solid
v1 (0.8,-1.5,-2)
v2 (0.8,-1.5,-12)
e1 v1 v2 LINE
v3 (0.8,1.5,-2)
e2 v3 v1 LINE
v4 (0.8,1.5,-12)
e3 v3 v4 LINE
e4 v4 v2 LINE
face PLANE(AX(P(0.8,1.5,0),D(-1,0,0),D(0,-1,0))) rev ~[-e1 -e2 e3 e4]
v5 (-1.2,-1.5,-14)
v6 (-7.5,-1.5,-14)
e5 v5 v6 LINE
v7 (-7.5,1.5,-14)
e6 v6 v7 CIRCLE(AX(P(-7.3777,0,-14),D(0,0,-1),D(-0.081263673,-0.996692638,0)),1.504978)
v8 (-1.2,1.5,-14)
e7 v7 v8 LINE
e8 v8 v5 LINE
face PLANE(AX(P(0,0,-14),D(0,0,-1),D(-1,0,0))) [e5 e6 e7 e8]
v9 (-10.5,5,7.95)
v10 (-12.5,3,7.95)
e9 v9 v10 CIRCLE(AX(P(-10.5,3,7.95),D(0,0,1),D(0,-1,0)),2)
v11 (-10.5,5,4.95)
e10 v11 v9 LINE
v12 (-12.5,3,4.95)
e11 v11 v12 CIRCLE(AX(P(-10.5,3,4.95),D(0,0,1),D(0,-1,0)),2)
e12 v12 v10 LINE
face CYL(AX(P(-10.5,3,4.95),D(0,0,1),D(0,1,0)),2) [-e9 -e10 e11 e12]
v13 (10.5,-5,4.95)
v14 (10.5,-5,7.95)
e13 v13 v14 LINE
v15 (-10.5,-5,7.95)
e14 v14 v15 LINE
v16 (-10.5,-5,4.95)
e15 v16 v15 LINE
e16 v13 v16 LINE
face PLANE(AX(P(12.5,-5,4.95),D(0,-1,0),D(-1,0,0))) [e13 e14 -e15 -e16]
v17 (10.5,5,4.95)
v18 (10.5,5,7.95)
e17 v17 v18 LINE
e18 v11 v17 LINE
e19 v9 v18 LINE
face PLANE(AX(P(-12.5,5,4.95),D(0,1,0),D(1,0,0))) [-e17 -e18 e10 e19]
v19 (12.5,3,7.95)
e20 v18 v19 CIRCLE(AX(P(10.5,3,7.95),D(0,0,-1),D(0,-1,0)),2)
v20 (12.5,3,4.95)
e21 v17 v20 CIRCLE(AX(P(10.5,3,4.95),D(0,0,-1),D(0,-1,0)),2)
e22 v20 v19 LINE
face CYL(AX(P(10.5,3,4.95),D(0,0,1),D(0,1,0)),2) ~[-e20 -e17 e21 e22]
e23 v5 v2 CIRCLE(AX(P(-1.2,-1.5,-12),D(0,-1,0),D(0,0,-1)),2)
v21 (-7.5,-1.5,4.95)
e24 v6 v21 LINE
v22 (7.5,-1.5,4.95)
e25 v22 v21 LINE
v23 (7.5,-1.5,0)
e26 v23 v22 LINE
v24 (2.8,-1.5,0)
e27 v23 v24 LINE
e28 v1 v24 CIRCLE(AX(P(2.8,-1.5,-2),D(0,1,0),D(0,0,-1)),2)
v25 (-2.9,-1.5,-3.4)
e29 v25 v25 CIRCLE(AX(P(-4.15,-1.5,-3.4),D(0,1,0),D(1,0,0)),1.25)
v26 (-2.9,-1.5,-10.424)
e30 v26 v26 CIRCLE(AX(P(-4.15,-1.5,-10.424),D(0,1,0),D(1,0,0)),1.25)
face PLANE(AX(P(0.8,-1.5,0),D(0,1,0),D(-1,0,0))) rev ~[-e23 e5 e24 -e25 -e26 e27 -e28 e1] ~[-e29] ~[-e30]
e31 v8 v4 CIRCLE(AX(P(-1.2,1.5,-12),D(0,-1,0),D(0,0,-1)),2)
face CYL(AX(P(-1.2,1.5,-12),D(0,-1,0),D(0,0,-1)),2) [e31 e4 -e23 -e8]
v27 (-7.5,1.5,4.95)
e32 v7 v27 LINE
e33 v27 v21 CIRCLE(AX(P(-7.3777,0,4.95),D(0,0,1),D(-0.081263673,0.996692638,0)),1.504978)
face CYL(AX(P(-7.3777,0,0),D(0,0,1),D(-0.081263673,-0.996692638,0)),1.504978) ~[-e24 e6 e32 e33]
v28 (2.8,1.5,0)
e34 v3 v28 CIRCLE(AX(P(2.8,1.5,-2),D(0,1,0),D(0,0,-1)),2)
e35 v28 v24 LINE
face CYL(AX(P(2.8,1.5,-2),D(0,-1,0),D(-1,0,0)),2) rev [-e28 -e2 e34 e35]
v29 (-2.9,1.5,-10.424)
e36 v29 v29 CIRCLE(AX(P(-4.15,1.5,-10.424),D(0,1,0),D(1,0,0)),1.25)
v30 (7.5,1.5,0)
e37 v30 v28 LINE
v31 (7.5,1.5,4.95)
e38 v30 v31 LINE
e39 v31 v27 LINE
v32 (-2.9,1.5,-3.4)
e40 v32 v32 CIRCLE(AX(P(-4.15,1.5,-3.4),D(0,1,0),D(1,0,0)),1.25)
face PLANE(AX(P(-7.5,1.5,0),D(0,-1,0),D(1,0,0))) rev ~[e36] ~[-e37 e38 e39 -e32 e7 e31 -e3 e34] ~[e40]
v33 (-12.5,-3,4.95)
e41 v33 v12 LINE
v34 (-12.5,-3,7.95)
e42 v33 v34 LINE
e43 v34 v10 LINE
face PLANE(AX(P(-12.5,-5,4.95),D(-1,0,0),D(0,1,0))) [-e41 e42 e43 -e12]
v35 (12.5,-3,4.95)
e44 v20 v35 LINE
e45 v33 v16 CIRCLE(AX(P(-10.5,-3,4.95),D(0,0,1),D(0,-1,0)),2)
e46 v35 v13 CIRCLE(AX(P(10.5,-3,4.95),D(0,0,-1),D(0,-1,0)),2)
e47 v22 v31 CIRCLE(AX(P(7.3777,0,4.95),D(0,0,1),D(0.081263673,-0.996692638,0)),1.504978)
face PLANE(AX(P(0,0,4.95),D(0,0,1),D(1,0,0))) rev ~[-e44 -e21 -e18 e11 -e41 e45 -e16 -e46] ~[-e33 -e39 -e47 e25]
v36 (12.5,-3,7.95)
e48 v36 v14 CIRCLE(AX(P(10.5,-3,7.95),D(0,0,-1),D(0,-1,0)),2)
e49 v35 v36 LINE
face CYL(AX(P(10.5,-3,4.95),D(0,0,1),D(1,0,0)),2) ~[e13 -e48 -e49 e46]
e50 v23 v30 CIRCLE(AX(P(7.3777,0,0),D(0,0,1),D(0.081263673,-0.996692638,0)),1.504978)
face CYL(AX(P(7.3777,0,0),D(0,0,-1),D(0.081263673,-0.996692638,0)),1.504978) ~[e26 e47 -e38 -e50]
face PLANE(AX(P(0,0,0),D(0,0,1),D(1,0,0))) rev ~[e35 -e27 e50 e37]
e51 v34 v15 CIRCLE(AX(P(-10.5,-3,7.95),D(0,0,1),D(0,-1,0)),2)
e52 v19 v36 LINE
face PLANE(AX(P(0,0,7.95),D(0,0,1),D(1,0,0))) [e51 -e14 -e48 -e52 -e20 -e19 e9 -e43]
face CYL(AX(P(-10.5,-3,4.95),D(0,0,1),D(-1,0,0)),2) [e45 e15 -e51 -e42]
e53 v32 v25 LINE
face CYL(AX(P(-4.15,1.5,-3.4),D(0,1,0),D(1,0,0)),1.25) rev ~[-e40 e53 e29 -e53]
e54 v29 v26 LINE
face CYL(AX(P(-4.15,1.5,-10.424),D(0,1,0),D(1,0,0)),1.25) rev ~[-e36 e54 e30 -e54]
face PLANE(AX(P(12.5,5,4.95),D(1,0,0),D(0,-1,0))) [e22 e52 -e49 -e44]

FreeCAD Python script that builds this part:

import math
import FreeCAD as App
import Part
import Sketcher

V = App.Vector


def edges_at(feature, points):
    """Names of the edges that pass closest to the given points."""
    edges = feature.Shape.Edges
    near = lambda p: min(range(len(edges)), key=lambda i: edges[i].distToShape(Part.Vertex(*p))[0])
    return sorted({f"Edge{near(p) + 1}" for p in points})

doc = App.newDocument("Part")
params = doc.addObject("Spreadsheet::Sheet", "Params")
for row, (alias, value) in enumerate([
    ("sketch1_width", "15 mm"),
    ("pad1_length", "4.95 mm"),
    ("sketch2_width", "25 mm"),
    ("sketch2_height", "10 mm"),
    ("pad2_length", "3 mm"),
    ("sketch3_height", "3 mm"),
    ("sketch3_width", "8.3 mm"),
    ("pad3_length", "14 mm"),
    ("sketch4_diameter", "2.5 mm"),
    ("fillet_radius", "2 mm"),
], start=1):
    params.set(f"A{row}", alias)
    params.set(f"B{row}", "=" + value)
    params.setAlias(f"B{row}", alias)

body = doc.addObject("PartDesign::Body", "Body")

# Sketch on XY plane
sketch1 = doc.addObject("Sketcher::SketchObject", "Sketch")
body.addObject(sketch1)
sketch1.AttachmentSupport = (doc.XY_Plane, [""])
sketch1.MapMode = "FlatFace"
sketch1.addGeometry([
    Part.LineSegment(V(-7.5, -1.5, 0), V(7.5, -1.5, 0)),
    Part.ArcOfCircle(Part.Circle(V(7.4, 0, 0), V(0, 0, 1), 1.5), math.radians(-85), math.radians(85)),
    Part.LineSegment(V(7.5, 1.5, 0), V(-7.5, 1.5, 0)),
    Part.ArcOfCircle(Part.Circle(V(-7.4, 0, 0), V(0, 0, 1), 1.5), math.radians(95), math.radians(265)),
], False)
sketch1.addConstraint([
    Sketcher.Constraint("Coincident", 0, 2, 1, 1),
    Sketcher.Constraint("Coincident", 1, 2, 2, 1),
    Sketcher.Constraint("Coincident", 2, 2, 3, 1),
    Sketcher.Constraint("Coincident", 3, 2, 0, 1),
    Sketcher.Constraint("Horizontal", 0),
    Sketcher.Constraint("Horizontal", 2),
    Sketcher.Constraint("Equal", 1, 3),
    Sketcher.Constraint("Symmetric", 1, 3, 3, 3, -1, 1),
    Sketcher.Constraint("Symmetric", 0, 2, 1, 2, -1),
    Sketcher.Constraint("DistanceX", 0, 1, 0, 2, 15.0),
    Sketcher.Constraint("DistanceY", 0, 2, 1, 2, 3.0),
    Sketcher.Constraint("Radius", 1, 1.505),
])
sketch1.setExpression("Constraints[9]", "Params.sketch1_width")
pad1 = doc.addObject("PartDesign::Pad", "Pad")
body.addObject(pad1)
pad1.Profile = sketch1
pad1.setExpression("Length", "Params.pad1_length")

# Sketch on XY plane
sketch2 = doc.addObject("Sketcher::SketchObject", "Sketch001")
body.addObject(sketch2)
sketch2.AttachmentSupport = (doc.XY_Plane, [""])
sketch2.MapMode = "FlatFace"
sketch2.AttachmentOffset = App.Placement(V(0, 0, 4.95), App.Rotation())
sketch2.addGeometry([
    Part.LineSegment(V(12, 5, 0), V(-12, 5, 0)),
    Part.LineSegment(V(-12, 5, 0), V(-12, -5, 0)),
    Part.LineSegment(V(-12, -5, 0), V(12, -5, 0)),
    Part.LineSegment(V(12, -5, 0), V(12, 5, 0)),
], False)
sketch2.addConstraint([
    Sketcher.Constraint("Coincident", 0, 2, 1, 1),
    Sketcher.Constraint("Coincident", 1, 2, 2, 1),
    Sketcher.Constraint("Coincident", 2, 2, 3, 1),
    Sketcher.Constraint("Coincident", 3, 2, 0, 1),
    Sketcher.Constraint("Horizontal", 0),
    Sketcher.Constraint("Vertical", 1),
    Sketcher.Constraint("Horizontal", 2),
    Sketcher.Constraint("Vertical", 3),
    Sketcher.Constraint("Symmetric", 0, 2, 2, 2, -1, 1),
    Sketcher.Constraint("DistanceX", 0, 2, 0, 1, 25.0),
    Sketcher.Constraint("DistanceY", 1, 2, 1, 1, 10.0),
])
sketch2.setExpression("Constraints[9]", "Params.sketch2_width")
sketch2.setExpression("Constraints[10]", "Params.sketch2_height")
pad2 = doc.addObject("PartDesign::Pad", "Pad001")
body.addObject(pad2)
pad2.Profile = sketch2
pad2.setExpression("Length", "Params.pad2_length")

# Sketch on XY plane
sketch3 = doc.addObject("Sketcher::SketchObject", "Sketch002")
body.addObject(sketch3)
sketch3.AttachmentSupport = (doc.XY_Plane, [""])
sketch3.MapMode = "FlatFace"
sketch3.addGeometry([
    Part.LineSegment(V(-7.5, 1.5, 0), V(0.8, 1.5, 0)),
    Part.LineSegment(V(0.8, 1.5, 0), V(0.8, -1.5, 0)),
    Part.LineSegment(V(0.8, -1.5, 0), V(-7.5, -1.5, 0)),
    Part.ArcOfCircle(Part.Circle(V(-7.4, 0, 0), V(0, 0, 1), 1.5), math.radians(95), math.radians(265)),
], False)
sketch3.addConstraint([
    Sketcher.Constraint("Coincident", 0, 2, 1, 1),
    Sketcher.Constraint("Coincident", 1, 2, 2, 1),
    Sketcher.Constraint("Coincident", 2, 2, 3, 2),
    Sketcher.Constraint("Coincident", 3, 1, 0, 1),
    Sketcher.Constraint("Horizontal", 0),
    Sketcher.Constraint("Vertical", 1),
    Sketcher.Constraint("Horizontal", 2),
    Sketcher.Constraint("Symmetric", 2, 2, 3, 1, -1),
    Sketcher.Constraint("DistanceY", 1, 2, 1, 1, 3.0),
    Sketcher.Constraint("DistanceX", 0, 1, 0, 2, 8.3),
    Sketcher.Constraint("Radius", 3, 1.505),
    Sketcher.Constraint("DistanceX", -1, 1, 0, 2, 0.8),
])
sketch3.setExpression("Constraints[8]", "Params.sketch3_height")
sketch3.setExpression("Constraints[9]", "Params.sketch3_width")
pad3 = doc.addObject("PartDesign::Pad", "Pad002")
body.addObject(pad3)
pad3.Profile = sketch3
pad3.setExpression("Length", "Params.pad3_length")
pad3.Reversed = True

# Sketch on XZ plane
sketch4 = doc.addObject("Sketcher::SketchObject", "Sketch003")
body.addObject(sketch4)
sketch4.AttachmentSupport = (doc.XZ_Plane, [""])
sketch4.MapMode = "FlatFace"
sketch4.AttachmentOffset = App.Placement(V(0, 0, -1.5), App.Rotation())
sketch4.addGeometry([
    Part.Circle(V(-4.2, -3.4, 0), V(0, 0, 1), 1.2),
    Part.Circle(V(-4.2, -10.4, 0), V(0, 0, 1), 1.2),
], False)
sketch4.addConstraint([
    Sketcher.Constraint("Equal", 0, 1),
    Sketcher.Constraint("Vertical", 0, 3, 1, 3),
    Sketcher.Constraint("Diameter", 0, 2.5),
    Sketcher.Constraint("DistanceY", 1, 3, 0, 3, 7.024),
    Sketcher.Constraint("DistanceY", 0, 3, -1, 1, 3.4),
    Sketcher.Constraint("DistanceX", 0, 3, -1, 1, 4.15),
])
sketch4.setExpression("Constraints[2]", "Params.sketch4_diameter")
pocket1 = doc.addObject("PartDesign::Pocket", "Pocket")
body.addObject(pocket1)
pocket1.Profile = sketch4
pocket1.Type = "ThroughAll"
pocket1.Reversed = True
doc.recompute()

fillet = doc.addObject("PartDesign::Fillet", "Fillet")
body.addObject(fillet)
fillet.Base = (pocket1, edges_at(pocket1, [
    (0.8, 0, 0),
    (0.8, 0, -14),
    (-12.5, 5, 6.45),
    (-12.5, -5, 6.45),
    (12.5, -5, 6.45),
    (12.5, 5, 6.45),
]))
fillet.setExpression("Radius", "Params.fillet_radius")

doc.recompute()
